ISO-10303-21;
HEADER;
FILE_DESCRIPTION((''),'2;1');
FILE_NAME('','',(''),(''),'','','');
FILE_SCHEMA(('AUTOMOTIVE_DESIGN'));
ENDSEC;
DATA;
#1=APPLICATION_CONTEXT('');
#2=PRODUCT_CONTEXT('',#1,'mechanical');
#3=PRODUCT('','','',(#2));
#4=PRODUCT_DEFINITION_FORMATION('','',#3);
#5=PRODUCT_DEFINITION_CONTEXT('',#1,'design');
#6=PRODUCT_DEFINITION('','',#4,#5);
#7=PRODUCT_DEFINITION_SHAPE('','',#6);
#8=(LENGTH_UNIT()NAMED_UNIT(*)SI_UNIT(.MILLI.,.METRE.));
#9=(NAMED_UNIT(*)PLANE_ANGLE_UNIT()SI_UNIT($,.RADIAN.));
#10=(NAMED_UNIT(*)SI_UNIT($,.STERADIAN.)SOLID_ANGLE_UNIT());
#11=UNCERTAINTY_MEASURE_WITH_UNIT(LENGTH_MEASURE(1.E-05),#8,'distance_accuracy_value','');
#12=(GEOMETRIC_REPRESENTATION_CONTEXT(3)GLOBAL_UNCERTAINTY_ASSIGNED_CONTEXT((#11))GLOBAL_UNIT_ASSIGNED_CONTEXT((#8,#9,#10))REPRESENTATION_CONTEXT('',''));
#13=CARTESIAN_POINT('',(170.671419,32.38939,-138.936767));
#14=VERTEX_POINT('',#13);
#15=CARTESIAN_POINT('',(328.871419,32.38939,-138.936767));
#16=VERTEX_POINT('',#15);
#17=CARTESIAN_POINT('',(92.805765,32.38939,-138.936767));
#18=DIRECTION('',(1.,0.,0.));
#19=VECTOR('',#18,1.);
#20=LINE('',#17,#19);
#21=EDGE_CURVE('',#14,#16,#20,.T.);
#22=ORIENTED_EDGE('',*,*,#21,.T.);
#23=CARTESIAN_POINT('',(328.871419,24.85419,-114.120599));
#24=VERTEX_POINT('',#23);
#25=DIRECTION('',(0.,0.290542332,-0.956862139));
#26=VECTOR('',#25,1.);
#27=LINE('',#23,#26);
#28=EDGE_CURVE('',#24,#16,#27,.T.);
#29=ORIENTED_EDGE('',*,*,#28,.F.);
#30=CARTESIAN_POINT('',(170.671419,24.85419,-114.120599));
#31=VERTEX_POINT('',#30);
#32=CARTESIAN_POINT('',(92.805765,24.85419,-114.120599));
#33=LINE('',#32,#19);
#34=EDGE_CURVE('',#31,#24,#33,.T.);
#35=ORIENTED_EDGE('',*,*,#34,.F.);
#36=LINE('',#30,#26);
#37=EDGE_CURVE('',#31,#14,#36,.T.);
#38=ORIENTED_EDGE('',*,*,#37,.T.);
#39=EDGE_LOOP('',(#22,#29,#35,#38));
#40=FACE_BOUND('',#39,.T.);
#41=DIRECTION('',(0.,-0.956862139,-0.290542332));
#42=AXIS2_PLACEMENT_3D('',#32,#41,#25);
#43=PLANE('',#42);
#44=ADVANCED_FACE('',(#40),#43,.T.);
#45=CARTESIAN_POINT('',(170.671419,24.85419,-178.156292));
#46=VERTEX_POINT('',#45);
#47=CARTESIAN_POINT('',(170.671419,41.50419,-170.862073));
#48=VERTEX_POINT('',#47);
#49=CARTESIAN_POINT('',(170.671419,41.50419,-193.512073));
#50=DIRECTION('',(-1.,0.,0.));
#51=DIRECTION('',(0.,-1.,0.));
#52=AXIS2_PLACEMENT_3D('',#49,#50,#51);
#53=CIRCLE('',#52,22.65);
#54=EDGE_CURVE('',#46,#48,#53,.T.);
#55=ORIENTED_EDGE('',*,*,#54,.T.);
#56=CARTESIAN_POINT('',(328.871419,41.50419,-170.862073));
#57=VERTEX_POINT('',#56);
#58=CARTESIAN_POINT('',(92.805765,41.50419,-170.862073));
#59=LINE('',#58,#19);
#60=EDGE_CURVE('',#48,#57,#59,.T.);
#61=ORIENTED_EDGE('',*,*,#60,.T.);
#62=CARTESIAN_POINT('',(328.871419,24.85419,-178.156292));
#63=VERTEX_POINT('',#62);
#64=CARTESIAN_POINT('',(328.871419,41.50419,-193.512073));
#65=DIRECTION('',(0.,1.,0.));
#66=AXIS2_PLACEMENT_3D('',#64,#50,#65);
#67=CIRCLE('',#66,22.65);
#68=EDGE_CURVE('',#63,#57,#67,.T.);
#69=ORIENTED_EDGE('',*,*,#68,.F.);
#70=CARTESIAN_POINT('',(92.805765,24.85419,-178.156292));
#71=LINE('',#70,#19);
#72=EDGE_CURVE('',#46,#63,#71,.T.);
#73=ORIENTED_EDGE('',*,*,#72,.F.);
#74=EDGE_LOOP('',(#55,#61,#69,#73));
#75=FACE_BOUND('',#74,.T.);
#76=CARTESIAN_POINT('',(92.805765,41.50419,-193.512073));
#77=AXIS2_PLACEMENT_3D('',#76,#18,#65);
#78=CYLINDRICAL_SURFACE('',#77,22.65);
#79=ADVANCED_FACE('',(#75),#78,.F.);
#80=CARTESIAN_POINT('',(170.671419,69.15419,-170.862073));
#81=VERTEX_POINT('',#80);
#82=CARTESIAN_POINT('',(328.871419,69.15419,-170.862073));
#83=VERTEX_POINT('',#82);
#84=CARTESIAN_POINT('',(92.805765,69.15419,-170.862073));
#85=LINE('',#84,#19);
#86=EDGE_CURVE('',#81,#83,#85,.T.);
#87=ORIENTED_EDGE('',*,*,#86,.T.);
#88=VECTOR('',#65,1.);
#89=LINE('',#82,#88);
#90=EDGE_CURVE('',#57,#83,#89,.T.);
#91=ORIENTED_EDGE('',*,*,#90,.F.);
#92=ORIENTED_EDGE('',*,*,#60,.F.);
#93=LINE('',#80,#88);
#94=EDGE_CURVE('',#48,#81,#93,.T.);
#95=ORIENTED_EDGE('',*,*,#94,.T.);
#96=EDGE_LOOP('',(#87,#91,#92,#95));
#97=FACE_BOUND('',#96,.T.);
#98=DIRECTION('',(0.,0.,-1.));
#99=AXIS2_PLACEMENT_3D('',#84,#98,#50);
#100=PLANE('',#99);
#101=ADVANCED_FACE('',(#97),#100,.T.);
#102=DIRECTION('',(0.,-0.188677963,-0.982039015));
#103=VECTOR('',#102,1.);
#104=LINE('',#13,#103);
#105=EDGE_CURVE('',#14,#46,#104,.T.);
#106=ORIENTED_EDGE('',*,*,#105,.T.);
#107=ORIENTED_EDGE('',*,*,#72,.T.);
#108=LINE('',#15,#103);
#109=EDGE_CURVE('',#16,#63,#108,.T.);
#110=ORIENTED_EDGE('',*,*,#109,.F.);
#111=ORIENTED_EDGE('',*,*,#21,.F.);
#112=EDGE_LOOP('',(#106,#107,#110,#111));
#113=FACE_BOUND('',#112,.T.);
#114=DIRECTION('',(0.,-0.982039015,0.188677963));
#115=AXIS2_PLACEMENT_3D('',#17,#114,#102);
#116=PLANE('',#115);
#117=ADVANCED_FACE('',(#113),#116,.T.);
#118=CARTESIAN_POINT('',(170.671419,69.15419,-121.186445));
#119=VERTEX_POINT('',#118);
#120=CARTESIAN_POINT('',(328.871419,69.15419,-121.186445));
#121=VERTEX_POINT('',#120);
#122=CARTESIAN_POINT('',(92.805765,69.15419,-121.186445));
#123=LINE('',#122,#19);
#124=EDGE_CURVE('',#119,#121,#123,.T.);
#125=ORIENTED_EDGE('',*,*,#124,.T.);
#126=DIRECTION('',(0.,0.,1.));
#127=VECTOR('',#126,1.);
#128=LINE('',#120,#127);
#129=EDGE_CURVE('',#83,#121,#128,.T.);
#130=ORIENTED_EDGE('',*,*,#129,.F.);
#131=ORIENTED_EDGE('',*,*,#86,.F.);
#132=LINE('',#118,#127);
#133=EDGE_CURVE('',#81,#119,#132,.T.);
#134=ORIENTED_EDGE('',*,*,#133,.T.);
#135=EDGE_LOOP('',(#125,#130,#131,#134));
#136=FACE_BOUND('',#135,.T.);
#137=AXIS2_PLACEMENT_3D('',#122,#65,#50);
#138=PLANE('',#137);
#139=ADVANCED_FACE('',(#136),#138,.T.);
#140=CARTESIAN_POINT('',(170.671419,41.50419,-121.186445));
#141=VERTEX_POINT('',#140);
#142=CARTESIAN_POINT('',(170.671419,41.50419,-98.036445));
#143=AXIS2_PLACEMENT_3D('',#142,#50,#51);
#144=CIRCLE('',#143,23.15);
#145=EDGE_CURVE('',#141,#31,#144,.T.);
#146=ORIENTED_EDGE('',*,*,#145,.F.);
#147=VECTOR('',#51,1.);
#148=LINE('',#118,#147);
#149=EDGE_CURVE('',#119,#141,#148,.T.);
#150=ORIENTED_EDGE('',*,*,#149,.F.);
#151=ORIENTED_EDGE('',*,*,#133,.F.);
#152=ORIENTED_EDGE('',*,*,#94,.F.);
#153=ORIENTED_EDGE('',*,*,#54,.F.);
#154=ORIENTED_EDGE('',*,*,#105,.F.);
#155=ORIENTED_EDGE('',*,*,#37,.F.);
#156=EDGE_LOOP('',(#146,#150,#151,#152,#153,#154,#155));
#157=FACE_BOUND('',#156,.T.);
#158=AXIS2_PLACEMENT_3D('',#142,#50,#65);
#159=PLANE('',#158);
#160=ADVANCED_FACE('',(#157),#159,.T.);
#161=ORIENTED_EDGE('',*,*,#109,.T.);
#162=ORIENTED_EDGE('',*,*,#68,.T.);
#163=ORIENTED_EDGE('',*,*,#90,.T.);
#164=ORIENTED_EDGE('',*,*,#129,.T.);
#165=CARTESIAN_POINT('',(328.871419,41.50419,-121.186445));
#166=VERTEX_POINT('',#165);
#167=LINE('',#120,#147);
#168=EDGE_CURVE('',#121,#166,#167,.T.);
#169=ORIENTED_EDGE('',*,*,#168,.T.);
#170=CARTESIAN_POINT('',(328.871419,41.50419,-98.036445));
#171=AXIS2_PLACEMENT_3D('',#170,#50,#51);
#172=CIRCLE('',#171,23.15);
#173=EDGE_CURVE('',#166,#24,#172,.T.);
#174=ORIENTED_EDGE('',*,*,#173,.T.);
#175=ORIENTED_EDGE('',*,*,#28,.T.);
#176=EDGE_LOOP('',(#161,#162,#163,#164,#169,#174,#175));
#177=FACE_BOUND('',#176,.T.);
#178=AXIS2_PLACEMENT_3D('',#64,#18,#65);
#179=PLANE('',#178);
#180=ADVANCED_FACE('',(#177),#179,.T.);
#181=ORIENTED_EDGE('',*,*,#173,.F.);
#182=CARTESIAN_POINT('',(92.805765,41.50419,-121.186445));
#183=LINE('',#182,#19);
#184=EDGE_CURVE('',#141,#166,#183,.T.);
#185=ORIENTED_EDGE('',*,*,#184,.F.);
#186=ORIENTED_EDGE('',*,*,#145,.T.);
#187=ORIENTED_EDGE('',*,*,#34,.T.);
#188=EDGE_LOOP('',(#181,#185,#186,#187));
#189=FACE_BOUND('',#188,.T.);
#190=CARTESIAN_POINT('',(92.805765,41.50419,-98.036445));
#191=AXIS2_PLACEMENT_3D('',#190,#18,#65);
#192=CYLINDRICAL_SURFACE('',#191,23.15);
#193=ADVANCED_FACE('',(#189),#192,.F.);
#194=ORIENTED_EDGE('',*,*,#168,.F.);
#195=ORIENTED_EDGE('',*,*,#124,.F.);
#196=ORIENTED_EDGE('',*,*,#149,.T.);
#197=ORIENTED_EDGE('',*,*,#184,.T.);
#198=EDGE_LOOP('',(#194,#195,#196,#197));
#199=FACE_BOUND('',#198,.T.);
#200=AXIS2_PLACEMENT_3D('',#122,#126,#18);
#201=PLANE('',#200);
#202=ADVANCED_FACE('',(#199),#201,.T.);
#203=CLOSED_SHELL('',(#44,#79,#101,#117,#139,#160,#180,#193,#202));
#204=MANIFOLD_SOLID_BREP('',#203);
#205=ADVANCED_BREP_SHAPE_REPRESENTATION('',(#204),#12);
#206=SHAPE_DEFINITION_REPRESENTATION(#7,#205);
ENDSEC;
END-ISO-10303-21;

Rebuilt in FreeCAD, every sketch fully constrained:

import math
import FreeCAD as App
import Part
import Sketcher

V = App.Vector
Q = App.Units.Quantity

doc = App.newDocument("Part")
body = doc.addObject("PartDesign::Body", "Body")

# Sketch on YZ plane
sketch1 = body.newObject("Sketcher::SketchObject", "Sketch")
sketch1.AttachmentSupport = (doc.getObject("YZ_Plane"), [""])
sketch1.MapMode = "FlatFace"
sketch1.AttachmentOffset = App.Placement(V(0, 0, 328.871419), App.Rotation())
sketch1.addGeometry([
    Part.LineSegment(V(69, -121, 0), V(42, -121, 0)),  # 0
    Part.ArcOfCircle(Part.Circle(V(42, -98, 0), V(0, 0, 1), 23), math.radians(-136), math.radians(-90)),  # 1
    Part.LineSegment(V(25, -114, 0), V(32, -139, 0)),  # 2
    Part.LineSegment(V(32, -139, 0), V(25, -178, 0)),  # 3
    Part.ArcOfCircle(Part.Circle(V(42, -194, 0), V(0, 0, 1), 23), math.radians(90), math.radians(137)),  # 4
    Part.LineSegment(V(42, -171, 0), V(69, -171, 0)),  # 5
    Part.LineSegment(V(69, -171, 0), V(69, -121, 0)),  # 6
], False)
sketch1.addConstraint([
    Sketcher.Constraint("Tangent", 0, 2, 1, 2),
    Sketcher.Constraint("Coincident", 1, 1, 2, 1),
    Sketcher.Constraint("Coincident", 2, 2, 3, 1),
    Sketcher.Constraint("Coincident", 3, 2, 4, 2),
    Sketcher.Constraint("Tangent", 4, 1, 5, 1),
    Sketcher.Constraint("Coincident", 5, 2, 6, 1),
    Sketcher.Constraint("Coincident", 6, 2, 0, 1),
    Sketcher.Constraint("Horizontal", 0),
    Sketcher.Constraint("Horizontal", 5),
    Sketcher.Constraint("Vertical", 6),
    Sketcher.Constraint("Vertical", 1, 3, 4, 3),
    Sketcher.Constraint("Vertical", 1, 1, 3, 2),
    Sketcher.Constraint("Radius", 1, Q("23.15 mm")),
    Sketcher.Constraint("Radius", 4, Q("22.65 mm")),
    Sketcher.Constraint("DistanceX", 0, 2, 0, 1, Q("27.65 mm")),
    Sketcher.Constraint("DistanceX", 3, 2, 5, 2, Q("44.3 mm")),
    Sketcher.Constraint("DistanceY", 6, 1, 6, 2, Q("49.675628 mm")),
    Sketcher.Constraint("DistanceY", 1, 1, -1, 1, Q("114.120599 mm")),
    Sketcher.Constraint("DistanceX", 2, 2, 0, 2, Q("9.1148 mm")),
    Sketcher.Constraint("Distance", 3, Q("39.93683 mm")),
    Sketcher.Constraint("DistanceX", -1, 1, 1, 3, Q("41.50419 mm")),
])
pad1 = body.newObject("PartDesign::Pad", "Pad")
pad1.Profile = sketch1
pad1.Length = 158.2
pad1.Reversed = True

doc.recompute()
